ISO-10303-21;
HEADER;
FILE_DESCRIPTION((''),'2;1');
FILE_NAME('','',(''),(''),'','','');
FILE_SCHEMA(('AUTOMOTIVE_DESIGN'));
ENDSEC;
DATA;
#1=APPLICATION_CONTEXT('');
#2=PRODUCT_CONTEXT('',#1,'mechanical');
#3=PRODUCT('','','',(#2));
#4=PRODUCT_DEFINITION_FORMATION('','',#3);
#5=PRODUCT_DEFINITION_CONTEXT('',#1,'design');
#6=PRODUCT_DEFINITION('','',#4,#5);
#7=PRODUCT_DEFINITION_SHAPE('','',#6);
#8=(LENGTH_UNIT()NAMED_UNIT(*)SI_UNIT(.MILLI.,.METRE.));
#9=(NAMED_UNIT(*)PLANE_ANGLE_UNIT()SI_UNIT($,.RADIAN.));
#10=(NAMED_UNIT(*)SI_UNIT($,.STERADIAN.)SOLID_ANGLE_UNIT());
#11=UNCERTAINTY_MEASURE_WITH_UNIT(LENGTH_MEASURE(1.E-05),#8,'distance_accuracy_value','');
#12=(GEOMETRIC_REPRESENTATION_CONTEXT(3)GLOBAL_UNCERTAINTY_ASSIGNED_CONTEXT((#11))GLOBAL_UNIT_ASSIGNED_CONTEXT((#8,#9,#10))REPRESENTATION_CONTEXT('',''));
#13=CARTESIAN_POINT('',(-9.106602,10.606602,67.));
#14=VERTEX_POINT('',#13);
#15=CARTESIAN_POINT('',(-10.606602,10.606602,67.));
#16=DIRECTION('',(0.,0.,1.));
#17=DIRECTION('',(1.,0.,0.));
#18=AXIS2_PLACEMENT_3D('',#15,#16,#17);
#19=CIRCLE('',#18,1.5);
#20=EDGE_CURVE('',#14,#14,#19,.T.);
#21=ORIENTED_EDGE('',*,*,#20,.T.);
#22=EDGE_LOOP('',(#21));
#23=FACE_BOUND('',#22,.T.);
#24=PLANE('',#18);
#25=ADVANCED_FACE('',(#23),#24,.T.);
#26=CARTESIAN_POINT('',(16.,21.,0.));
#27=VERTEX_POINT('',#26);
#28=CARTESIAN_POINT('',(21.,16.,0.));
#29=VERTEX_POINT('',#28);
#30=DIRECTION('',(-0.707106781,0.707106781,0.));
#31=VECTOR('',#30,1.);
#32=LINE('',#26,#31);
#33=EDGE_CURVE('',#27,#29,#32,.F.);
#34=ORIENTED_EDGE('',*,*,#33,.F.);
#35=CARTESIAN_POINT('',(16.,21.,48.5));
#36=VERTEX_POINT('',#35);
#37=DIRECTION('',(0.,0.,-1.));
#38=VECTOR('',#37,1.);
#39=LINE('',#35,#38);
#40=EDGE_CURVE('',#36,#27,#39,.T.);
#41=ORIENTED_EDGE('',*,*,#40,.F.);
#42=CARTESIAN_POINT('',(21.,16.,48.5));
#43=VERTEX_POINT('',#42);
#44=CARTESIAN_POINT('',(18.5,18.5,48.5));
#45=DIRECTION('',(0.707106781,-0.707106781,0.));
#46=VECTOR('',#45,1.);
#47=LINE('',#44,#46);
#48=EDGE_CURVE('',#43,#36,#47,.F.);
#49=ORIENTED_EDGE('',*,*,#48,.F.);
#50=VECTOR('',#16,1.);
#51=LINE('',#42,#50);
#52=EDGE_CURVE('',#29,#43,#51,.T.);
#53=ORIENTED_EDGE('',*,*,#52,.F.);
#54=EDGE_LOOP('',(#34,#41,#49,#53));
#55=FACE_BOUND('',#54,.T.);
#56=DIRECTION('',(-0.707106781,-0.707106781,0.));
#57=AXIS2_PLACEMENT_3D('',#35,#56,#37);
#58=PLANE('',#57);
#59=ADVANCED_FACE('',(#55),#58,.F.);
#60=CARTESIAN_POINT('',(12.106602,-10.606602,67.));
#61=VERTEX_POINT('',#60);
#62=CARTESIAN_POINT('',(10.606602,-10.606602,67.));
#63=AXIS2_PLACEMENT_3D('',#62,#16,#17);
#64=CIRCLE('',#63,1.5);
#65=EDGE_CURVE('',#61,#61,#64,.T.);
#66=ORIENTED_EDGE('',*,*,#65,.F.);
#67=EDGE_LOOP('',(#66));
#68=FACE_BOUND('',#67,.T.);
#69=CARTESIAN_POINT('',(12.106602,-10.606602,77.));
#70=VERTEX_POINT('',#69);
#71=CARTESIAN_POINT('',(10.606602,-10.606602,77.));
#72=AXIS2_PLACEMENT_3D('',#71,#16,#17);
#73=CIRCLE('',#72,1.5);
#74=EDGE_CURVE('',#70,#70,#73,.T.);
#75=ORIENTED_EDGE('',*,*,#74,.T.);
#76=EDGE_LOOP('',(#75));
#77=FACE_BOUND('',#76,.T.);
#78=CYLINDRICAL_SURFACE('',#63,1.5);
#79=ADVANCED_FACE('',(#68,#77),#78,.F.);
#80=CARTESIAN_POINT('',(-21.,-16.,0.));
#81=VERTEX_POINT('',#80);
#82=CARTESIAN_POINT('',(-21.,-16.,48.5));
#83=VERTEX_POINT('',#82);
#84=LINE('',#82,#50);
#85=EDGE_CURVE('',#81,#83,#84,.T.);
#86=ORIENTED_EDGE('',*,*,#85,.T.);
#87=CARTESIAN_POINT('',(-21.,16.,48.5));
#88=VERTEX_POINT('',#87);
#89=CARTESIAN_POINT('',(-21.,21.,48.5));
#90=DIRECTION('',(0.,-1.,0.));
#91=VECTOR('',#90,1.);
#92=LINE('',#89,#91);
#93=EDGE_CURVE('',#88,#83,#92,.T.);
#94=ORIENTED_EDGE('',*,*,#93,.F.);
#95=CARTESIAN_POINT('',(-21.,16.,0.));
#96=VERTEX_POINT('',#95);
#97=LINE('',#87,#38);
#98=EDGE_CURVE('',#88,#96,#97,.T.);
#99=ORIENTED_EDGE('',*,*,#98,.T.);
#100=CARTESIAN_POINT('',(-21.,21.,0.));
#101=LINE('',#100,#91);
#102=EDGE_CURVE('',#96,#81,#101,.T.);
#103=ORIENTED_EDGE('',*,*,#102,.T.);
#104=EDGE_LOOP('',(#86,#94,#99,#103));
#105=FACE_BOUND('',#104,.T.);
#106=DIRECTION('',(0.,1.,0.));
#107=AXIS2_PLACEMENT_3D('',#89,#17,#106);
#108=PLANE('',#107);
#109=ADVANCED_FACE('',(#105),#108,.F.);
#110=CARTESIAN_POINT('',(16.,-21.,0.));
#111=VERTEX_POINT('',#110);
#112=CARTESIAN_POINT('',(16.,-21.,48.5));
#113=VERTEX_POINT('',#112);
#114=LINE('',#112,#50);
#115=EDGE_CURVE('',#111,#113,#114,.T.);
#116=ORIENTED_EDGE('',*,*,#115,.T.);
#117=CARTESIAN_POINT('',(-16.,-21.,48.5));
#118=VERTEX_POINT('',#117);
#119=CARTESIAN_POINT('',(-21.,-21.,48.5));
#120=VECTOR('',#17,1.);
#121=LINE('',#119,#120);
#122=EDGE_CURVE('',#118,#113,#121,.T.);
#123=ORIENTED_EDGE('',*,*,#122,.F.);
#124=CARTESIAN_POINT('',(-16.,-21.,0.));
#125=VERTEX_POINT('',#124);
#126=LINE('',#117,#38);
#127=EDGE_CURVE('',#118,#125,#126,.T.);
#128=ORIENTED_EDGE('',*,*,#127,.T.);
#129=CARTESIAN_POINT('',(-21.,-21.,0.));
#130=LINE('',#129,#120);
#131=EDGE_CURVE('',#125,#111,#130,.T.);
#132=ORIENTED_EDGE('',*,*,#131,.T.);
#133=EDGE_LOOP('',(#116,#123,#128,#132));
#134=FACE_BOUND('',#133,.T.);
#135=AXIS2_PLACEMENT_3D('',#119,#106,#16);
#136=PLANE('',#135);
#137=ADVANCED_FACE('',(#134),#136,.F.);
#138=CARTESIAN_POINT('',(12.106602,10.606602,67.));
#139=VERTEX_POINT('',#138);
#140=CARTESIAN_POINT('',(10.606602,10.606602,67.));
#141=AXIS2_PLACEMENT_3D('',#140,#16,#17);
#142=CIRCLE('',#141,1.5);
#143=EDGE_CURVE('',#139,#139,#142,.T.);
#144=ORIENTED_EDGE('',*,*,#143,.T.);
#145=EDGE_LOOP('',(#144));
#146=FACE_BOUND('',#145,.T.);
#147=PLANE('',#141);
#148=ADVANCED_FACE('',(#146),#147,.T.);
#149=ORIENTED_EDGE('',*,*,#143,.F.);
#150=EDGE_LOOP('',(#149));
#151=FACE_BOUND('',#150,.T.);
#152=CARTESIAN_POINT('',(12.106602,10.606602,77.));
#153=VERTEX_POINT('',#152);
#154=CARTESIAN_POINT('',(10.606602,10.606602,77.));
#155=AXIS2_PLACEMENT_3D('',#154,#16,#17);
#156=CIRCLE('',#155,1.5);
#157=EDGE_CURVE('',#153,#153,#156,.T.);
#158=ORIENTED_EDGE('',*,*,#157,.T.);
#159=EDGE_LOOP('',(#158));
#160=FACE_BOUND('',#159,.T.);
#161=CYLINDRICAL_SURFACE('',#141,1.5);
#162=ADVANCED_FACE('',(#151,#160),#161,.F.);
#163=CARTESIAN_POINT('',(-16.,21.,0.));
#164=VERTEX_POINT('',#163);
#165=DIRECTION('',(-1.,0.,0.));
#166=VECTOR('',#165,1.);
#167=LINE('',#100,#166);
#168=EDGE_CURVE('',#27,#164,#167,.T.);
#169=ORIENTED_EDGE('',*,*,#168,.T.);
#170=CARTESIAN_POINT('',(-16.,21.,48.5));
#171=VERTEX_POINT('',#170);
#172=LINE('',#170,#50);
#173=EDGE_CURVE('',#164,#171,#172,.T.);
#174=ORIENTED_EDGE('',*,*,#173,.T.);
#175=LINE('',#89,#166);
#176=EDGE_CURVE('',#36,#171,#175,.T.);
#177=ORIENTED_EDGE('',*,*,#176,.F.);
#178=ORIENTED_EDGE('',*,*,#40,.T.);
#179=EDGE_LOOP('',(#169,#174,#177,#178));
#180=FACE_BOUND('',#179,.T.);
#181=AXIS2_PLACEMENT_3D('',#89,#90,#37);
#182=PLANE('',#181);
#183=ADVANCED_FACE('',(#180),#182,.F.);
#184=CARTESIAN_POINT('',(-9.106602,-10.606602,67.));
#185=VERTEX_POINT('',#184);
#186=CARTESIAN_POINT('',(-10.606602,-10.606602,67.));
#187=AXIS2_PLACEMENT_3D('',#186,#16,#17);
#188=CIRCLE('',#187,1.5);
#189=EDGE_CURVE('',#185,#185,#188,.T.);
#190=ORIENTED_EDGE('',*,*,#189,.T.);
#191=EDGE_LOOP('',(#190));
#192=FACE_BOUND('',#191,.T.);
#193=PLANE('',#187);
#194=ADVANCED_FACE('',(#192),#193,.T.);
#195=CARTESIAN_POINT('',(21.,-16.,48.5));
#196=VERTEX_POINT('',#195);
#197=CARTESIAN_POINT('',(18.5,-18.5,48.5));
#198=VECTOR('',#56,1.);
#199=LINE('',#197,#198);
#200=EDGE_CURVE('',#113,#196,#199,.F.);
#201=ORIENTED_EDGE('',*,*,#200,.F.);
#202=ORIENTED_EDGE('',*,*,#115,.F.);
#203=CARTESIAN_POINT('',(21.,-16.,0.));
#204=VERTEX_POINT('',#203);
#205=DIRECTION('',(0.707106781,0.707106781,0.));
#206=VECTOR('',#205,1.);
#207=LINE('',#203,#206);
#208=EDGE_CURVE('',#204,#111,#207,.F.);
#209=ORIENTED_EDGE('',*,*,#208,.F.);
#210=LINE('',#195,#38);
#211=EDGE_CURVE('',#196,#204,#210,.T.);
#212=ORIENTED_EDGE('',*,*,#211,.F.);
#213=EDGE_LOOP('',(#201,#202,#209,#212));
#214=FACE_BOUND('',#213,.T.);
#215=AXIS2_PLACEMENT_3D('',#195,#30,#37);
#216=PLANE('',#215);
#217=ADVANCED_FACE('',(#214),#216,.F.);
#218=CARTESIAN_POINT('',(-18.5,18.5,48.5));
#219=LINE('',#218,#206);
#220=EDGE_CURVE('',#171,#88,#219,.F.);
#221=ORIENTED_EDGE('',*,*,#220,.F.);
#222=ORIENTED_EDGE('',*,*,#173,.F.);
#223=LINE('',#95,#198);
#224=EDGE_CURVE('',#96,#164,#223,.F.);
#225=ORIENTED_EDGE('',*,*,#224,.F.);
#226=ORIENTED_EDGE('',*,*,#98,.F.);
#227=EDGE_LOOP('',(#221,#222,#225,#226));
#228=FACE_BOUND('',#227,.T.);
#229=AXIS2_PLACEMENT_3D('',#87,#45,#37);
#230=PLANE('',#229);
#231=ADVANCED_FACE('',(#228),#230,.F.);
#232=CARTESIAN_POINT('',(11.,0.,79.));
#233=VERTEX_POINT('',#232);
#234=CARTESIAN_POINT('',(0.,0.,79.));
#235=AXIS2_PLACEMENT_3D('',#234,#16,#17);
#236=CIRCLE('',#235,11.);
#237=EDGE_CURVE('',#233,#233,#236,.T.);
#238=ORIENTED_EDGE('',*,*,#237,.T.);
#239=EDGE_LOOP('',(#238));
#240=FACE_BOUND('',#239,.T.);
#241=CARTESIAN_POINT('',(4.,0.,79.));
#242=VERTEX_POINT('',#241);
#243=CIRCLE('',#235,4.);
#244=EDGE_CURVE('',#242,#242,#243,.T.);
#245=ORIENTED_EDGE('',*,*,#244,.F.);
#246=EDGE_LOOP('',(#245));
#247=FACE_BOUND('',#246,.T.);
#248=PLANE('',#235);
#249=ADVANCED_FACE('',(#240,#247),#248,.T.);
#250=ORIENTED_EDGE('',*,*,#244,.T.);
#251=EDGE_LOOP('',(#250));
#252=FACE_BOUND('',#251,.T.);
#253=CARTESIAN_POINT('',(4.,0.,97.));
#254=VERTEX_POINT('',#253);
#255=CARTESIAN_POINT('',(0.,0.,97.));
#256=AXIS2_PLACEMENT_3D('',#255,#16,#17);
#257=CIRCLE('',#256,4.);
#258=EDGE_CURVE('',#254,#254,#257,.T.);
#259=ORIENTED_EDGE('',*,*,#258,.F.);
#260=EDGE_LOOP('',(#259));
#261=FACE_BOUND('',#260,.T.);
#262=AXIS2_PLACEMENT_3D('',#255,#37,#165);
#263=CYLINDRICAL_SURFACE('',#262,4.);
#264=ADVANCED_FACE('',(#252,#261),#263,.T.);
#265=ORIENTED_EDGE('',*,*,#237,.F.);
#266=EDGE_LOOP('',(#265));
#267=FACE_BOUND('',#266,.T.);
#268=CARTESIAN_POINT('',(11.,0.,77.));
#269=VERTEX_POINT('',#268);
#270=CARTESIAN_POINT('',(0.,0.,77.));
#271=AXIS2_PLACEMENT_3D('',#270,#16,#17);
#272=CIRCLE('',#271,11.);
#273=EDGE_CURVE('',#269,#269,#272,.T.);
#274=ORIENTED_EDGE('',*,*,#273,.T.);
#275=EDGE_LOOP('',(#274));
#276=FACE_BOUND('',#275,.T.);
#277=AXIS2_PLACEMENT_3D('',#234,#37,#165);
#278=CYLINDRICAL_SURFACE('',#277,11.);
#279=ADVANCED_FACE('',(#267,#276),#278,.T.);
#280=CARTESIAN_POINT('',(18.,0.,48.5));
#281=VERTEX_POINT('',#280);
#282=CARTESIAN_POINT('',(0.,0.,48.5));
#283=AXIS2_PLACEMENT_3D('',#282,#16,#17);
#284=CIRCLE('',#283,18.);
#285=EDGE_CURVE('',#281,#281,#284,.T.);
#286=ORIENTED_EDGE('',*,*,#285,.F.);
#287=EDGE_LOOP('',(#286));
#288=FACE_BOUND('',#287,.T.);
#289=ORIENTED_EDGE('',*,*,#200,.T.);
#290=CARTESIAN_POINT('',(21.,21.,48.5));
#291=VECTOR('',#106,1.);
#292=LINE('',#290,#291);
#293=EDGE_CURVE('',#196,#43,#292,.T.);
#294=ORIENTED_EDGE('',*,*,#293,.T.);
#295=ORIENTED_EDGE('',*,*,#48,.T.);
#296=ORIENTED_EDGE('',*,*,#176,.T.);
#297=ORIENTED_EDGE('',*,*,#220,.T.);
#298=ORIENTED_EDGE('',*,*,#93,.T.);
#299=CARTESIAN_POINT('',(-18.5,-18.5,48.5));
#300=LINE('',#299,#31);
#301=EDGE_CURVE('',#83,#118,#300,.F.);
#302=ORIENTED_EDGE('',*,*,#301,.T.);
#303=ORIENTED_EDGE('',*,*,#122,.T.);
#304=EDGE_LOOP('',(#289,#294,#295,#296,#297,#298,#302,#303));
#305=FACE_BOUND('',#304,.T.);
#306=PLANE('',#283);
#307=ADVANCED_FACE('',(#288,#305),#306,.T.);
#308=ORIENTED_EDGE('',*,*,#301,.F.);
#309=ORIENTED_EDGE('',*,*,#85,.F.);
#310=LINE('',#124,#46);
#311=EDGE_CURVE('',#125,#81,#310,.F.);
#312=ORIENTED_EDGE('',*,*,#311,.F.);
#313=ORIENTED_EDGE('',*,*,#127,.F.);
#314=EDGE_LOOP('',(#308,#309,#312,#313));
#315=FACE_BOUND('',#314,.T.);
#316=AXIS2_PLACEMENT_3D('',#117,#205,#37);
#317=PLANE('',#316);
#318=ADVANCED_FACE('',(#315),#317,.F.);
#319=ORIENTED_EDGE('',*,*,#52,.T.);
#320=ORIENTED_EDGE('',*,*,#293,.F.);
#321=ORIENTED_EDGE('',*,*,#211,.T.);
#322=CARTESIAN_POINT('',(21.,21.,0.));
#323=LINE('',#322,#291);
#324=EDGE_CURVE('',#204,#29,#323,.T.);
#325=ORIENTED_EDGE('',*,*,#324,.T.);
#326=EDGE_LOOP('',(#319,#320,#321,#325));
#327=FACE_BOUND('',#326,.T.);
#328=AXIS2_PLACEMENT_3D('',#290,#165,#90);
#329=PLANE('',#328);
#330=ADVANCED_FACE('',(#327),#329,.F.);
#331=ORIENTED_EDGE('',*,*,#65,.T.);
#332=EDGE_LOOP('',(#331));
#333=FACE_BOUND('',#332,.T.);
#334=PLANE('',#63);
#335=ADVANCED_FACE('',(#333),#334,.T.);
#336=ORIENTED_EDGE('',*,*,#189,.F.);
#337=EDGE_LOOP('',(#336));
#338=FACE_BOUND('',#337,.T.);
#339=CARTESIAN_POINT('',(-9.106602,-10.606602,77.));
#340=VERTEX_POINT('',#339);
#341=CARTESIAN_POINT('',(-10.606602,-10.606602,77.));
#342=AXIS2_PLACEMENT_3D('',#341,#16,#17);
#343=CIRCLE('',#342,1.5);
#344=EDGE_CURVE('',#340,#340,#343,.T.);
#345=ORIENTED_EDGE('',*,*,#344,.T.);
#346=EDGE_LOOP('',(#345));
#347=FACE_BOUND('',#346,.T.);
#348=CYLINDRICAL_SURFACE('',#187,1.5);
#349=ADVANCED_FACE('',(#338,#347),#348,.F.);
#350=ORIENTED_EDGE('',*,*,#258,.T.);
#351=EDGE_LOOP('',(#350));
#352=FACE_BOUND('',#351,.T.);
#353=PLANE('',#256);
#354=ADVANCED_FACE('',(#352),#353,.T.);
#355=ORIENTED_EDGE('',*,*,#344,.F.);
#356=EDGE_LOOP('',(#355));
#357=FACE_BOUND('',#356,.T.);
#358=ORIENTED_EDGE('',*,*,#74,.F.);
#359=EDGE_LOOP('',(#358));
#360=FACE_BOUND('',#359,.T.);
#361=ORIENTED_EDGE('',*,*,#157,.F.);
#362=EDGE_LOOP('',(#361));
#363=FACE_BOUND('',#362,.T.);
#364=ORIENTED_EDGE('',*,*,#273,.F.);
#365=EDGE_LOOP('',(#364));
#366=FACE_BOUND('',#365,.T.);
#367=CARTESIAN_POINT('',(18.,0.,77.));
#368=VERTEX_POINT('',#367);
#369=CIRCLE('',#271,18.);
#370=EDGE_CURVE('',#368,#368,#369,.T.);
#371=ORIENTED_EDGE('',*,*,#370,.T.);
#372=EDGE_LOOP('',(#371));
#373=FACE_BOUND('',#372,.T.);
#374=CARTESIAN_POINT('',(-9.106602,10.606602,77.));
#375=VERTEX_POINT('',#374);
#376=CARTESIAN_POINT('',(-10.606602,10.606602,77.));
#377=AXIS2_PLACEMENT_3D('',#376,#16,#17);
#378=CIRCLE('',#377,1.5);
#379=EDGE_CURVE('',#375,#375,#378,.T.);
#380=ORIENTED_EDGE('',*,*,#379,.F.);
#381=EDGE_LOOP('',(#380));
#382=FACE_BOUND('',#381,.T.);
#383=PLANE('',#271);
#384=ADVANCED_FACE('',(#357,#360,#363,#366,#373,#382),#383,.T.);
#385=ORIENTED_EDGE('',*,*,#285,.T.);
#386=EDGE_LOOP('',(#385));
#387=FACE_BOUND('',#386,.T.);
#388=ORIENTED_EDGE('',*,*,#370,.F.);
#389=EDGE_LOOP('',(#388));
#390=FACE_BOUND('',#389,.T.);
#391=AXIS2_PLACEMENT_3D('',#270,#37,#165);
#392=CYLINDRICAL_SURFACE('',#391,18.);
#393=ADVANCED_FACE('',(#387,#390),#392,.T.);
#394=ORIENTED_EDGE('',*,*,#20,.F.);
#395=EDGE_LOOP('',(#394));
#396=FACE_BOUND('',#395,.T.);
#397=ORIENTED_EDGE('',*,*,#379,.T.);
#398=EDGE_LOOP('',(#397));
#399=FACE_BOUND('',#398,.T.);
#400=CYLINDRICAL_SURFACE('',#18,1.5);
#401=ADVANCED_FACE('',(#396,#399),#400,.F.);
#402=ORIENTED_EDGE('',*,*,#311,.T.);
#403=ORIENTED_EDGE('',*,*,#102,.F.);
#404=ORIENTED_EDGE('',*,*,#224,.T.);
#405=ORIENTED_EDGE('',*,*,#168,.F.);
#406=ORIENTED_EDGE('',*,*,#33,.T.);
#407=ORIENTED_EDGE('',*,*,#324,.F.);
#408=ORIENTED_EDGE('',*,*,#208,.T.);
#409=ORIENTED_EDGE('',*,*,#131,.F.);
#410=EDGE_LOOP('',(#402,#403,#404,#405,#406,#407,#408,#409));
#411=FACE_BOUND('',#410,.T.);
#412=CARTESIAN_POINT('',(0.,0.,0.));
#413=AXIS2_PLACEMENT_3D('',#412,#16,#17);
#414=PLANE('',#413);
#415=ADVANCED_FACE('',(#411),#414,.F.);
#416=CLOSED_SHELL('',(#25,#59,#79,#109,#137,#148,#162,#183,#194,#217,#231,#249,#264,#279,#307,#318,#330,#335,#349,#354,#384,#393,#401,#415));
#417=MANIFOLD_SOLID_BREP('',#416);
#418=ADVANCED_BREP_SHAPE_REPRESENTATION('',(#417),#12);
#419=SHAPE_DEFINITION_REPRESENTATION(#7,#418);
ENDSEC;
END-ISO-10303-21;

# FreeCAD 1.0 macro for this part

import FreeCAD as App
import Part
import Sketcher


def edges_at(feature, points):
    """Names of the edges that pass closest to the given points."""
    edges = feature.Shape.Edges
    near = lambda p: min(range(len(edges)), key=lambda i: edges[i].distToShape(Part.Vertex(*p))[0])
    return sorted({f"Edge{near(p) + 1}" for p in points})


def add_polygon(sketch, points):
    """Adds a closed chain of lines whose ends are joined by coincident constraints."""
    first, n = sketch.GeometryCount, len(points)
    for a, b in zip(points, points[1:] + points[:1]):
        sketch.addGeometry(Part.LineSegment(App.Vector(*a, 0), App.Vector(*b, 0)), False)
    for i in range(n):
        sketch.addConstraint(Sketcher.Constraint("Coincident", first + i, 2, first + (i + 1) % n, 1))

doc = App.newDocument("Part")
params = doc.addObject("Spreadsheet::Sheet", "Params")
for row, (alias, value) in enumerate([
    ("sketch1_width", "42 mm"),
    ("pad1_length", "48.5 mm"),
    ("sketch2_diameter", "36 mm"),
    ("pad2_length", "28.5 mm"),
    ("sketch3_diameter", "22 mm"),
    ("sketch3_diameter2", "8 mm"),
    ("pad3_length", "2 mm"),
    ("sketch4_diameter", "8 mm"),
    ("pad4_length", "20 mm"),
    ("sketch5_diameter", "3 mm"),
    ("pocket1_length", "10 mm"),
    ("chamfer_size", "5 mm"),
], start=1):
    params.set(f"A{row}", alias)
    params.set(f"B{row}", "=" + value)
    params.setAlias(f"B{row}", alias)

body = doc.addObject("PartDesign::Body", "Body")

# Sketch on XY plane
sketch1 = body.newObject("Sketcher::SketchObject", "Sketch")
sketch1.AttachmentSupport = (doc.getObject("XY_Plane"), [""])
sketch1.MapMode = "FlatFace"
add_polygon(sketch1, [(-21, 21), (-21, -21), (21, -21), (21, 21)])  # lines 0-3
sketch1.addConstraint([
    Sketcher.Constraint("Vertical", 0),
    Sketcher.Constraint("Horizontal", 1),
    Sketcher.Constraint("Vertical", 2),
    Sketcher.Constraint("Horizontal", 3),
    Sketcher.Constraint("Symmetric", 0, 2, 2, 2, -1, 1),
    Sketcher.Constraint("Equal", 3, 0),
    Sketcher.Constraint("DistanceX", 1, 1, 1, 2, 42.0),
])
sketch1.setExpression("Constraints[10]", "Params.sketch1_width")
pad1 = body.newObject("PartDesign::Pad", "Pad")
pad1.Profile = sketch1
pad1.setExpression("Length", "Params.pad1_length")

# Sketch on XY plane
sketch2 = body.newObject("Sketcher::SketchObject", "Sketch001")
sketch2.AttachmentSupport = (doc.getObject("XY_Plane"), [""])
sketch2.MapMode = "FlatFace"
sketch2.AttachmentOffset = App.Placement(App.Vector(0, 0, 48.5), App.Rotation())
sketch2.addGeometry(Part.Circle(App.Vector(0, 0, 0), App.Vector(0, 0, 1), 18), False)
sketch2.addConstraint([
    Sketcher.Constraint("Coincident", 0, 3, -1, 1),
    Sketcher.Constraint("Diameter", 0, 36.0),
])
sketch2.setExpression("Constraints[1]", "Params.sketch2_diameter")
pad2 = body.newObject("PartDesign::Pad", "Pad001")
pad2.Profile = sketch2
pad2.setExpression("Length", "Params.pad2_length")

# Sketch on XY plane
sketch3 = body.newObject("Sketcher::SketchObject", "Sketch002")
sketch3.AttachmentSupport = (doc.getObject("XY_Plane"), [""])
sketch3.MapMode = "FlatFace"
sketch3.AttachmentOffset = App.Placement(App.Vector(0, 0, 77), App.Rotation())
sketch3.addGeometry([
    Part.Circle(App.Vector(0, 0, 0), App.Vector(0, 0, 1), 11),
    Part.Circle(App.Vector(0, 0, 0), App.Vector(0, 0, 1), 4),
], False)
sketch3.addConstraint([
    Sketcher.Constraint("Coincident", 0, 3, -1, 1),
    Sketcher.Constraint("Coincident", 1, 3, -1, 1),
    Sketcher.Constraint("Diameter", 0, 22.0),
    Sketcher.Constraint("Diameter", 1, 8.0),
])
sketch3.setExpression("Constraints[2]", "Params.sketch3_diameter")
sketch3.setExpression("Constraints[3]", "Params.sketch3_diameter2")
pad3 = body.newObject("PartDesign::Pad", "Pad002")
pad3.Profile = sketch3
pad3.setExpression("Length", "Params.pad3_length")

# Sketch on XY plane
sketch4 = body.newObject("Sketcher::SketchObject", "Sketch003")
sketch4.AttachmentSupport = (doc.getObject("XY_Plane"), [""])
sketch4.MapMode = "FlatFace"
sketch4.AttachmentOffset = App.Placement(App.Vector(0, 0, 77), App.Rotation())
sketch4.addGeometry(Part.Circle(App.Vector(0, 0, 0), App.Vector(0, 0, 1), 4), False)
sketch4.addConstraint([
    Sketcher.Constraint("Coincident", 0, 3, -1, 1),
    Sketcher.Constraint("Diameter", 0, 8.0),
])
sketch4.setExpression("Constraints[1]", "Params.sketch4_diameter")
pad4 = body.newObject("PartDesign::Pad", "Pad003")
pad4.Profile = sketch4
pad4.setExpression("Length", "Params.pad4_length")

# Sketch on XY plane
sketch5 = body.newObject("Sketcher::SketchObject", "Sketch004")
sketch5.AttachmentSupport = (doc.getObject("XY_Plane"), [""])
sketch5.MapMode = "FlatFace"
sketch5.AttachmentOffset = App.Placement(App.Vector(0, 0, 77), App.Rotation())
sketch5.addGeometry([
    Part.Circle(App.Vector(10.6, -10.6, 0), App.Vector(0, 0, 1), 1.5),
    Part.Circle(App.Vector(-10.6, -10.6, 0), App.Vector(0, 0, 1), 1.5),
    Part.Circle(App.Vector(-10.6, 10.6, 0), App.Vector(0, 0, 1), 1.5),
    Part.Circle(App.Vector(10.6, 10.6, 0), App.Vector(0, 0, 1), 1.5),
], False)
sketch5.addConstraint([
    Sketcher.Constraint("Equal", 0, 1),
    Sketcher.Constraint("Equal", 1, 2),
    Sketcher.Constraint("Equal", 2, 3),
    Sketcher.Constraint("Symmetric", 0, 3, 2, 3, -1, 1),
    Sketcher.Constraint("Symmetric", 1, 3, 3, 3, -1, 1),
    Sketcher.Constraint("Symmetric", 0, 3, 1, 3, -2),
    Sketcher.Constraint("Diameter", 0, 3.0),
    Sketcher.Constraint("DistanceX", -1, 1, 0, 3, 10.606602),
    Sketcher.Constraint("DistanceY", 0, 3, -1, 1, 10.606602),
])
sketch5.setExpression("Constraints[6]", "Params.sketch5_diameter")
pocket1 = body.newObject("PartDesign::Pocket", "Pocket")
pocket1.Profile = sketch5
pocket1.setExpression("Length", "Params.pocket1_length")
doc.recompute()

chamfer = body.newObject("PartDesign::Chamfer", "Chamfer")
chamfer.Base = (pocket1, edges_at(pocket1, [
    (21, -21, 24.25),
    (-21, -21, 24.25),
    (-21, 21, 24.25),
    (21, 21, 24.25),
]))
chamfer.setExpression("Size", "Params.chamfer_size")

doc.recompute()
